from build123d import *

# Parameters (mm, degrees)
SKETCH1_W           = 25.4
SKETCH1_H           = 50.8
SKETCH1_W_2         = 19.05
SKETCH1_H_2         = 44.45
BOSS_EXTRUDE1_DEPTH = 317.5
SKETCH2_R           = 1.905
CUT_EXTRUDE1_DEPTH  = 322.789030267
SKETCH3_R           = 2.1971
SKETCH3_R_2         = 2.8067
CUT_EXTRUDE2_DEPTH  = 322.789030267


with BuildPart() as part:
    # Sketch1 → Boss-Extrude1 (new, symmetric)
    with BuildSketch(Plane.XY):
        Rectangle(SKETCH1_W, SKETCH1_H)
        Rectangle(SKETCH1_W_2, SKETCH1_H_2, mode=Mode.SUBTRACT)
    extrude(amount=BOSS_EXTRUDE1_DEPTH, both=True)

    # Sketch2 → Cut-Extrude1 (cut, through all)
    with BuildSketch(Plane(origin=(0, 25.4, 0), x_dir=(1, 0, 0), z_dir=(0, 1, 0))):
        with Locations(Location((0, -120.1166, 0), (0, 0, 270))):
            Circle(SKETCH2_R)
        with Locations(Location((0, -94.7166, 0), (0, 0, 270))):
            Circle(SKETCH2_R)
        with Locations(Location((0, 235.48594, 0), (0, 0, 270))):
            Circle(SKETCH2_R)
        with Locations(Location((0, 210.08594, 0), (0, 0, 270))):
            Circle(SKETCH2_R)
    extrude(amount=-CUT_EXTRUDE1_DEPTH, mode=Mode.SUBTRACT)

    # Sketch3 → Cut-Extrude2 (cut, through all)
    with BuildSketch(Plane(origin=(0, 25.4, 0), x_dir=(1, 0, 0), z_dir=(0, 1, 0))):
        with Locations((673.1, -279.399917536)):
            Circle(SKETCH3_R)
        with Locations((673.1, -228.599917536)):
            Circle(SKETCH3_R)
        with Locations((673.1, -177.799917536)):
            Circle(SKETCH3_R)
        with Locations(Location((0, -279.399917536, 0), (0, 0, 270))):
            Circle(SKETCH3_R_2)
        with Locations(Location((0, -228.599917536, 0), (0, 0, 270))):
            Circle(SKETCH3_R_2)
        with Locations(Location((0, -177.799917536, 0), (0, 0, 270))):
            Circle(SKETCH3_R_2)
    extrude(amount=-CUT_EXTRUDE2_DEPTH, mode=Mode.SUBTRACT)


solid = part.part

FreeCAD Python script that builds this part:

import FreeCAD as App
import Part
import Sketcher
Q = App.Units.Quantity


def add_polygon(sketch, points):
    """Adds a closed chain of lines whose ends are joined by coincident constraints."""
    first, n = sketch.GeometryCount, len(points)
    for a, b in zip(points, points[1:] + points[:1]):
        sketch.addGeometry(Part.LineSegment(App.Vector(*a, 0), App.Vector(*b, 0)), False)
    for i in range(n):
        sketch.addConstraint(Sketcher.Constraint("Coincident", first + i, 2, first + (i + 1) % n, 1))

doc = App.newDocument("Part")
body = doc.addObject("PartDesign::Body", "Body")

# Sketch on XY plane
sketch1 = doc.addObject("Sketcher::SketchObject", "Sketch")
body.addObject(sketch1)
sketch1.AttachmentSupport = (doc.XY_Plane, [""])
sketch1.MapMode = "FlatFace"
add_polygon(sketch1, [(-12.7, 25.4), (-12.7, -25.4), (12.7, -25.4), (12.7, 25.4)])  # lines 0-3
add_polygon(sketch1, [(9.525, -22.225), (-9.525, -22.225), (-9.525, 22.225), (9.525, 22.225)])  # lines 4-7
sketch1.addConstraint(Sketcher.Constraint("Vertical", 0))
sketch1.addConstraint(Sketcher.Constraint("Horizontal", 1))
sketch1.addConstraint(Sketcher.Constraint("Vertical", 2))
sketch1.addConstraint(Sketcher.Constraint("Horizontal", 3))
sketch1.addConstraint(Sketcher.Constraint("Horizontal", 4))
sketch1.addConstraint(Sketcher.Constraint("Vertical", 5))
sketch1.addConstraint(Sketcher.Constraint("Horizontal", 6))
sketch1.addConstraint(Sketcher.Constraint("Vertical", 7))
sketch1.addConstraint(Sketcher.Constraint("Symmetric", 0, 2, 2, 2, -1, 1))
sketch1.addConstraint(Sketcher.Constraint("Symmetric", 4, 2, 6, 2, -1, 1))
sketch1.addConstraint(Sketcher.Constraint("DistanceX", 1, 1, 1, 2, Q("1 in")))
sketch1.addConstraint(Sketcher.Constraint("DistanceY", 0, 2, 0, 1, Q("2 in")))
sketch1.addConstraint(Sketcher.Constraint("DistanceX", 4, 2, 4, 1, Q("0.75 in")))
sketch1.addConstraint(Sketcher.Constraint("DistanceY", 5, 1, 5, 2, Q("1.75 in")))
pad1 = doc.addObject("PartDesign::Pad", "Pad")
body.addObject(pad1)
pad1.Profile = sketch1
pad1.Length = Q("25 in")
pad1.Midplane = True

# Sketch on XZ plane
sketch2 = doc.addObject("Sketcher::SketchObject", "Sketch001")
body.addObject(sketch2)
sketch2.AttachmentSupport = (doc.XZ_Plane, [""])
sketch2.MapMode = "FlatFace"
sketch2.AttachmentOffset = App.Placement(App.Vector(0, 0, -1 * 25.4), App.Rotation())
sketch2.addGeometry(Part.Circle(App.Vector(0, 120.1166, 0), App.Vector(0, 0, 1), 1.905), False)
sketch2.addGeometry(Part.Circle(App.Vector(0, 94.7166, 0), App.Vector(0, 0, 1), 1.905), False)
sketch2.addGeometry(Part.Circle(App.Vector(0, -235.48594, 0), App.Vector(0, 0, 1), 1.905), False)
sketch2.addGeometry(Part.Circle(App.Vector(0, -210.08594, 0), App.Vector(0, 0, 1), 1.905), False)
sketch2.addConstraint(Sketcher.Constraint("Equal", 0, 1))
sketch2.addConstraint(Sketcher.Constraint("Equal", 1, 2))
sketch2.addConstraint(Sketcher.Constraint("Equal", 2, 3))
sketch2.addConstraint(Sketcher.Constraint("PointOnObject", 0, 3, -2))
sketch2.addConstraint(Sketcher.Constraint("PointOnObject", 1, 3, -2))
sketch2.addConstraint(Sketcher.Constraint("PointOnObject", 2, 3, -2))
sketch2.addConstraint(Sketcher.Constraint("PointOnObject", 3, 3, -2))
sketch2.addConstraint(Sketcher.Constraint("Diameter", 0, Q("0.15 in")))
sketch2.addConstraint(Sketcher.Constraint("DistanceY", 1, 3, 0, 3, Q("1 in")))
sketch2.addConstraint(Sketcher.Constraint("DistanceY", 2, 3, 3, 3, Q("1 in")))
sketch2.addConstraint(Sketcher.Constraint("DistanceY", -1, 1, 0, 3, Q("4.729 in")))
sketch2.addConstraint(Sketcher.Constraint("DistanceY", 2, 3, -1, 1, Q("9.2711 in")))
pocket1 = doc.addObject("PartDesign::Pocket", "Pocket")
body.addObject(pocket1)
pocket1.Profile = sketch2
pocket1.Type = "ThroughAll"
pocket1.Reversed = True

# Sketch on XZ plane
sketch3 = doc.addObject("Sketcher::SketchObject", "Sketch002")
body.addObject(sketch3)
sketch3.AttachmentSupport = (doc.XZ_Plane, [""])
sketch3.MapMode = "FlatFace"
sketch3.AttachmentOffset = App.Placement(App.Vector(0, 0, -1 * 25.4), App.Rotation())
sketch3.addGeometry(Part.Circle(App.Vector(673.1, 279.399918, 0), App.Vector(0, 0, 1), 2.1971), False)
sketch3.addGeometry(Part.Circle(App.Vector(673.1, 228.599918, 0), App.Vector(0, 0, 1), 2.1971), False)
sketch3.addGeometry(Part.Circle(App.Vector(673.1, 177.799918, 0), App.Vector(0, 0, 1), 2.1971), False)
sketch3.addGeometry(Part.Circle(App.Vector(0, 279.399918, 0), App.Vector(0, 0, 1), 2.8067), False)
sketch3.addGeometry(Part.Circle(App.Vector(0, 228.599918, 0), App.Vector(0, 0, 1), 2.8067), False)
sketch3.addGeometry(Part.Circle(App.Vector(0, 177.799918, 0), App.Vector(0, 0, 1), 2.8067), False)
sketch3.addConstraint(Sketcher.Constraint("Equal", 0, 1))
sketch3.addConstraint(Sketcher.Constraint("Equal", 1, 2))
sketch3.addConstraint(Sketcher.Constraint("Equal", 3, 4))
sketch3.addConstraint(Sketcher.Constraint("Equal", 4, 5))
sketch3.addConstraint(Sketcher.Constraint("PointOnObject", 3, 3, -2))
sketch3.addConstraint(Sketcher.Constraint("PointOnObject", 4, 3, -2))
sketch3.addConstraint(Sketcher.Constraint("PointOnObject", 5, 3, -2))
sketch3.addConstraint(Sketcher.Constraint("Horizontal", 0, 3, 3, 3))
sketch3.addConstraint(Sketcher.Constraint("Horizontal", 1, 3, 4, 3))
sketch3.addConstraint(Sketcher.Constraint("Horizontal", 2, 3, 5, 3))
sketch3.addConstraint(Sketcher.Constraint("Vertical", 0, 3, 1, 3))
sketch3.addConstraint(Sketcher.Constraint("Vertical", 1, 3, 2, 3))
sketch3.addConstraint(Sketcher.Constraint("Diameter", 0, Q("0.173 in")))
sketch3.addConstraint(Sketcher.Constraint("Diameter", 3, Q("0.221 in")))
sketch3.addConstraint(Sketcher.Constraint("DistanceY", 1, 3, 0, 3, Q("2 in")))
sketch3.addConstraint(Sketcher.Constraint("DistanceY", 2, 3, 1, 3, Q("2 in")))
sketch3.addConstraint(Sketcher.Constraint("DistanceX", -1, 1, 0, 3, Q("26.5 in")))
sketch3.addConstraint(Sketcher.Constraint("DistanceY", -1, 1, 0, 3, 279.399918))
pocket2 = doc.addObject("PartDesign::Pocket", "Pocket001")
body.addObject(pocket2)
pocket2.Profile = sketch3
pocket2.Type = "ThroughAll"
pocket2.Reversed = True

doc.recompute()
